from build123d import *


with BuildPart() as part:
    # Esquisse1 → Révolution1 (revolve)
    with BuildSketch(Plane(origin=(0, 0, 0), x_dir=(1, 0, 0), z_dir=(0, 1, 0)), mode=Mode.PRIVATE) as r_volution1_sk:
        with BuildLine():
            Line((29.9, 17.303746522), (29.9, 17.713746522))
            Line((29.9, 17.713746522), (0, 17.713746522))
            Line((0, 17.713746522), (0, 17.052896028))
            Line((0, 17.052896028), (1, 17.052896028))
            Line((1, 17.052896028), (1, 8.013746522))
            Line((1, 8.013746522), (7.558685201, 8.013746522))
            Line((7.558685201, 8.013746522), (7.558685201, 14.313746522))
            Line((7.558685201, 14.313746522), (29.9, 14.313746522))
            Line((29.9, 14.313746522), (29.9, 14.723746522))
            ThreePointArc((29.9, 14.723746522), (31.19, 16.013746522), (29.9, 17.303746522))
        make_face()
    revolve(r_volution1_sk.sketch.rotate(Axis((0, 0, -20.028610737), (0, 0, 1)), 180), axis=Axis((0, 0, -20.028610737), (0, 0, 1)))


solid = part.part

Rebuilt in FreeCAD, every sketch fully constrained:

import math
import FreeCAD as App
import Part
import Sketcher
from FreeCAD import Vector
Q = App.Units.Quantity

doc = App.newDocument("Part")
body = doc.addObject("PartDesign::Body", "Body")

# Sketch on XZ plane
sketch1 = body.newObject("Sketcher::SketchObject", "Sketch")
sketch1.AttachmentSupport = (doc.getObject("XZ_Plane"), [""])
sketch1.MapMode = "FlatFace"
sketch1.addGeometry([
    Part.LineSegment(Vector(29.9, -17.303747, 0), Vector(29.9, -17.713747, 0)),  # 0
    Part.LineSegment(Vector(29.9, -17.713747, 0), Vector(0, -17.713747, 0)),  # 1
    Part.LineSegment(Vector(0, -17.713747, 0), Vector(0, -17.052896, 0)),  # 2
    Part.LineSegment(Vector(0, -17.052896, 0), Vector(1, -17.052896, 0)),  # 3
    Part.LineSegment(Vector(1, -17.052896, 0), Vector(1, -8.013747, 0)),  # 4
    Part.LineSegment(Vector(1, -8.013747, 0), Vector(7.558685, -8.013747, 0)),  # 5
    Part.LineSegment(Vector(7.558685, -8.013747, 0), Vector(7.558685, -14.313747, 0)),  # 6
    Part.LineSegment(Vector(7.558685, -14.313747, 0), Vector(29.9, -14.313747, 0)),  # 7
    Part.LineSegment(Vector(29.9, -14.313747, 0), Vector(29.9, -14.723747, 0)),  # 8
    Part.ArcOfCircle(Part.Circle(Vector(29.9, -16.013747, 0), Vector(0, 0, 1), 1.29), math.radians(-90), math.radians(90)),  # 9
], False)
sketch1.addConstraint([
    Sketcher.Constraint("Coincident", 0, 2, 1, 1),
    Sketcher.Constraint("Coincident", 1, 2, 2, 1),
    Sketcher.Constraint("Coincident", 2, 2, 3, 1),
    Sketcher.Constraint("Coincident", 3, 2, 4, 1),
    Sketcher.Constraint("Coincident", 4, 2, 5, 1),
    Sketcher.Constraint("Coincident", 5, 2, 6, 1),
    Sketcher.Constraint("Coincident", 6, 2, 7, 1),
    Sketcher.Constraint("Coincident", 7, 2, 8, 1),
    Sketcher.Constraint("Coincident", 8, 2, 9, 2),
    Sketcher.Constraint("Coincident", 9, 1, 0, 1),
    Sketcher.Constraint("Vertical", 0),
    Sketcher.Constraint("Horizontal", 1),
    Sketcher.Constraint("Vertical", 2),
    Sketcher.Constraint("Horizontal", 3),
    Sketcher.Constraint("Vertical", 4),
    Sketcher.Constraint("Horizontal", 5),
    Sketcher.Constraint("Vertical", 6),
    Sketcher.Constraint("Horizontal", 7),
    Sketcher.Constraint("Vertical", 8),
    Sketcher.Constraint("PointOnObject", 1, 2, -2),
    Sketcher.Constraint("Vertical", 9, 3, 0, 2),
    Sketcher.Constraint("Vertical", 0, 2, 7, 2),
    Sketcher.Constraint("Equal", 0, 8),
    Sketcher.Constraint("DistanceX", 3, 1, 3, 2, Q("1 mm")),
    Sketcher.Constraint("Radius", 9, Q("1.29 mm")),
    Sketcher.Constraint("DistanceX", 1, 2, 1, 1, Q("29.9 mm")),
    Sketcher.Constraint("DistanceY", 6, 2, 6, 1, Q("6.3 mm")),
    Sketcher.Constraint("DistanceY", 9, 3, 4, 2, Q("8 mm")),
    Sketcher.Constraint("DistanceY", 2, 1, 2, 2, Q("0.66085 mm")),
    Sketcher.Constraint("DistanceX", 5, 1, 5, 2, Q("6.558685 mm")),
    Sketcher.Constraint("DistanceY", 9, 3, -1, 1, Q("16.013747 mm")),
])
revolution = body.newObject("PartDesign::Revolution", "Revolution")
revolution.Profile = sketch1
revolution.ReferenceAxis = (sketch1, ["V_Axis"])
revolution.Angle = 360

doc.recompute()
